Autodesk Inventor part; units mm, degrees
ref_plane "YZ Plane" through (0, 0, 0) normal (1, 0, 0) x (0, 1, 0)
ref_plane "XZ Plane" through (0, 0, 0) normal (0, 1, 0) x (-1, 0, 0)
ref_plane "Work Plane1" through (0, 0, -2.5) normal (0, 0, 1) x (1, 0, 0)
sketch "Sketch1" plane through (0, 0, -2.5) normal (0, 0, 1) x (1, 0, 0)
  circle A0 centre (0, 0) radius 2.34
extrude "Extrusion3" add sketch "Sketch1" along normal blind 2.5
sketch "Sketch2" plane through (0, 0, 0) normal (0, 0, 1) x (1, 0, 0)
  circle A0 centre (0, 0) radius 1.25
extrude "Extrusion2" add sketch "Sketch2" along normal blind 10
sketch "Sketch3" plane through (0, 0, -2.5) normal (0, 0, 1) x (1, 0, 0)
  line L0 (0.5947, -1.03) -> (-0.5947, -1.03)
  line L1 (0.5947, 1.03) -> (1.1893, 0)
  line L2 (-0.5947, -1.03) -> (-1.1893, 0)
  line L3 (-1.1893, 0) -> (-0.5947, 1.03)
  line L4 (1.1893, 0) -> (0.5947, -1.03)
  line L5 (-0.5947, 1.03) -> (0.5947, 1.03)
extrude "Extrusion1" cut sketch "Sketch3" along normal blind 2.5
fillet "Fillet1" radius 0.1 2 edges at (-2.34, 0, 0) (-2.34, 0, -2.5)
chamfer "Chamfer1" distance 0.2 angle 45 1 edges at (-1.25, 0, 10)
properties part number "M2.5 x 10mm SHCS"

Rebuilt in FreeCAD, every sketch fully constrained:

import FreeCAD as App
import Part
import Sketcher
from FreeCAD import Vector


def edges_at(feature, points):
    """Names of the edges that pass closest to the given points."""
    edges = feature.Shape.Edges
    near = lambda p: min(range(len(edges)), key=lambda i: edges[i].distToShape(Part.Vertex(*p))[0])
    return sorted({f"Edge{near(p) + 1}" for p in points})


def add_polygon(sketch, points):
    """Adds a closed chain of lines whose ends are joined by coincident constraints."""
    first, n = sketch.GeometryCount, len(points)
    for a, b in zip(points, points[1:] + points[:1]):
        sketch.addGeometry(Part.LineSegment(App.Vector(*a, 0), App.Vector(*b, 0)), False)
    for i in range(n):
        sketch.addConstraint(Sketcher.Constraint("Coincident", first + i, 2, first + (i + 1) % n, 1))

doc = App.newDocument("Part")
params = doc.addObject("Spreadsheet::Sheet", "Params")
for row, (alias, value) in enumerate([
    ("sketch1_diameter", "4.68 mm"),
    ("pad1_length", "2.5 mm"),
    ("sketch2_diameter", "2.5 mm"),
    ("pad2_length", "10 mm"),
    ("pocket1_length", "2.5 mm"),
    ("fillet_radius", "0.1 mm"),
    ("chamfer_size", "0.2 mm"),
], start=1):
    params.set(f"A{row}", alias)
    params.set(f"B{row}", "=" + value)
    params.setAlias(f"B{row}", alias)

body = doc.addObject("PartDesign::Body", "Body")

# Sketch on XY plane
sketch1 = body.newObject("Sketcher::SketchObject", "Sketch")
sketch1.AttachmentSupport = (doc.getObject("XY_Plane"), [""])
sketch1.MapMode = "FlatFace"
sketch1.AttachmentOffset = App.Placement(Vector(0, 0, -2.5), App.Rotation())
sketch1.addGeometry(Part.Circle(Vector(0, 0, 0), Vector(0, 0, 1), 2.3), False)
sketch1.addConstraint([
    Sketcher.Constraint("Coincident", 0, 3, -1, 1),
    Sketcher.Constraint("Diameter", 0, 4.68),
])
sketch1.setExpression("Constraints[1]", "Params.sketch1_diameter")
pad1 = body.newObject("PartDesign::Pad", "Pad")
pad1.Profile = sketch1
pad1.setExpression("Length", "Params.pad1_length")

# Sketch on XY plane
sketch2 = body.newObject("Sketcher::SketchObject", "Sketch001")
sketch2.AttachmentSupport = (doc.getObject("XY_Plane"), [""])
sketch2.MapMode = "FlatFace"
sketch2.addGeometry(Part.Circle(Vector(0, 0, 0), Vector(0, 0, 1), 1.2), False)
sketch2.addConstraint([
    Sketcher.Constraint("Coincident", 0, 3, -1, 1),
    Sketcher.Constraint("Diameter", 0, 2.5),
])
sketch2.setExpression("Constraints[1]", "Params.sketch2_diameter")
pad2 = body.newObject("PartDesign::Pad", "Pad001")
pad2.Profile = sketch2
pad2.setExpression("Length", "Params.pad2_length")

# Sketch on XY plane
sketch3 = body.newObject("Sketcher::SketchObject", "Sketch002")
sketch3.AttachmentSupport = (doc.getObject("XY_Plane"), [""])
sketch3.MapMode = "FlatFace"
sketch3.AttachmentOffset = App.Placement(Vector(0, 0, -2.5), App.Rotation())
add_polygon(sketch3, [(-0.6, -1), (0.6, -1), (1.2, 0), (0.6, 1), (-0.6, 1), (-1.2, 0)])  # lines 0-5
sketch3.addConstraint([
    Sketcher.Constraint("Horizontal", 0),
    Sketcher.Constraint("Horizontal", 3),
    Sketcher.Constraint("Symmetric", 0, 2, 3, 2, -1, 1),
    Sketcher.Constraint("Symmetric", 1, 2, 4, 2, -1, 1),
    Sketcher.Constraint("PointOnObject", 1, 2, -1),
    Sketcher.Constraint("Parallel", 2, 5),
    Sketcher.Constraint("Vertical", 0, 2, 2, 2),
    Sketcher.Constraint("DistanceY", 0, 2, -1, 1, 1.03),
    Sketcher.Constraint("DistanceX", 0, 1, 0, 2, 1.1894),
    Sketcher.Constraint("DistanceX", 3, 2, 1, 2, 1.784),
])
pocket1 = body.newObject("PartDesign::Pocket", "Pocket")
pocket1.Profile = sketch3
pocket1.setExpression("Length", "Params.pocket1_length")
pocket1.Reversed = True
doc.recompute()

fillet = body.newObject("PartDesign::Fillet", "Fillet")
fillet.Base = (pocket1, edges_at(pocket1, [(-2.34, 0, 0), (-2.34, 0, -2.5)]))
fillet.setExpression("Radius", "Params.fillet_radius")
doc.recompute()

chamfer = body.newObject("PartDesign::Chamfer", "Chamfer")
chamfer.Base = (fillet, edges_at(fillet, [(-1.25, 0, 10)]))
chamfer.setExpression("Size", "Params.chamfer_size")

doc.recompute()
